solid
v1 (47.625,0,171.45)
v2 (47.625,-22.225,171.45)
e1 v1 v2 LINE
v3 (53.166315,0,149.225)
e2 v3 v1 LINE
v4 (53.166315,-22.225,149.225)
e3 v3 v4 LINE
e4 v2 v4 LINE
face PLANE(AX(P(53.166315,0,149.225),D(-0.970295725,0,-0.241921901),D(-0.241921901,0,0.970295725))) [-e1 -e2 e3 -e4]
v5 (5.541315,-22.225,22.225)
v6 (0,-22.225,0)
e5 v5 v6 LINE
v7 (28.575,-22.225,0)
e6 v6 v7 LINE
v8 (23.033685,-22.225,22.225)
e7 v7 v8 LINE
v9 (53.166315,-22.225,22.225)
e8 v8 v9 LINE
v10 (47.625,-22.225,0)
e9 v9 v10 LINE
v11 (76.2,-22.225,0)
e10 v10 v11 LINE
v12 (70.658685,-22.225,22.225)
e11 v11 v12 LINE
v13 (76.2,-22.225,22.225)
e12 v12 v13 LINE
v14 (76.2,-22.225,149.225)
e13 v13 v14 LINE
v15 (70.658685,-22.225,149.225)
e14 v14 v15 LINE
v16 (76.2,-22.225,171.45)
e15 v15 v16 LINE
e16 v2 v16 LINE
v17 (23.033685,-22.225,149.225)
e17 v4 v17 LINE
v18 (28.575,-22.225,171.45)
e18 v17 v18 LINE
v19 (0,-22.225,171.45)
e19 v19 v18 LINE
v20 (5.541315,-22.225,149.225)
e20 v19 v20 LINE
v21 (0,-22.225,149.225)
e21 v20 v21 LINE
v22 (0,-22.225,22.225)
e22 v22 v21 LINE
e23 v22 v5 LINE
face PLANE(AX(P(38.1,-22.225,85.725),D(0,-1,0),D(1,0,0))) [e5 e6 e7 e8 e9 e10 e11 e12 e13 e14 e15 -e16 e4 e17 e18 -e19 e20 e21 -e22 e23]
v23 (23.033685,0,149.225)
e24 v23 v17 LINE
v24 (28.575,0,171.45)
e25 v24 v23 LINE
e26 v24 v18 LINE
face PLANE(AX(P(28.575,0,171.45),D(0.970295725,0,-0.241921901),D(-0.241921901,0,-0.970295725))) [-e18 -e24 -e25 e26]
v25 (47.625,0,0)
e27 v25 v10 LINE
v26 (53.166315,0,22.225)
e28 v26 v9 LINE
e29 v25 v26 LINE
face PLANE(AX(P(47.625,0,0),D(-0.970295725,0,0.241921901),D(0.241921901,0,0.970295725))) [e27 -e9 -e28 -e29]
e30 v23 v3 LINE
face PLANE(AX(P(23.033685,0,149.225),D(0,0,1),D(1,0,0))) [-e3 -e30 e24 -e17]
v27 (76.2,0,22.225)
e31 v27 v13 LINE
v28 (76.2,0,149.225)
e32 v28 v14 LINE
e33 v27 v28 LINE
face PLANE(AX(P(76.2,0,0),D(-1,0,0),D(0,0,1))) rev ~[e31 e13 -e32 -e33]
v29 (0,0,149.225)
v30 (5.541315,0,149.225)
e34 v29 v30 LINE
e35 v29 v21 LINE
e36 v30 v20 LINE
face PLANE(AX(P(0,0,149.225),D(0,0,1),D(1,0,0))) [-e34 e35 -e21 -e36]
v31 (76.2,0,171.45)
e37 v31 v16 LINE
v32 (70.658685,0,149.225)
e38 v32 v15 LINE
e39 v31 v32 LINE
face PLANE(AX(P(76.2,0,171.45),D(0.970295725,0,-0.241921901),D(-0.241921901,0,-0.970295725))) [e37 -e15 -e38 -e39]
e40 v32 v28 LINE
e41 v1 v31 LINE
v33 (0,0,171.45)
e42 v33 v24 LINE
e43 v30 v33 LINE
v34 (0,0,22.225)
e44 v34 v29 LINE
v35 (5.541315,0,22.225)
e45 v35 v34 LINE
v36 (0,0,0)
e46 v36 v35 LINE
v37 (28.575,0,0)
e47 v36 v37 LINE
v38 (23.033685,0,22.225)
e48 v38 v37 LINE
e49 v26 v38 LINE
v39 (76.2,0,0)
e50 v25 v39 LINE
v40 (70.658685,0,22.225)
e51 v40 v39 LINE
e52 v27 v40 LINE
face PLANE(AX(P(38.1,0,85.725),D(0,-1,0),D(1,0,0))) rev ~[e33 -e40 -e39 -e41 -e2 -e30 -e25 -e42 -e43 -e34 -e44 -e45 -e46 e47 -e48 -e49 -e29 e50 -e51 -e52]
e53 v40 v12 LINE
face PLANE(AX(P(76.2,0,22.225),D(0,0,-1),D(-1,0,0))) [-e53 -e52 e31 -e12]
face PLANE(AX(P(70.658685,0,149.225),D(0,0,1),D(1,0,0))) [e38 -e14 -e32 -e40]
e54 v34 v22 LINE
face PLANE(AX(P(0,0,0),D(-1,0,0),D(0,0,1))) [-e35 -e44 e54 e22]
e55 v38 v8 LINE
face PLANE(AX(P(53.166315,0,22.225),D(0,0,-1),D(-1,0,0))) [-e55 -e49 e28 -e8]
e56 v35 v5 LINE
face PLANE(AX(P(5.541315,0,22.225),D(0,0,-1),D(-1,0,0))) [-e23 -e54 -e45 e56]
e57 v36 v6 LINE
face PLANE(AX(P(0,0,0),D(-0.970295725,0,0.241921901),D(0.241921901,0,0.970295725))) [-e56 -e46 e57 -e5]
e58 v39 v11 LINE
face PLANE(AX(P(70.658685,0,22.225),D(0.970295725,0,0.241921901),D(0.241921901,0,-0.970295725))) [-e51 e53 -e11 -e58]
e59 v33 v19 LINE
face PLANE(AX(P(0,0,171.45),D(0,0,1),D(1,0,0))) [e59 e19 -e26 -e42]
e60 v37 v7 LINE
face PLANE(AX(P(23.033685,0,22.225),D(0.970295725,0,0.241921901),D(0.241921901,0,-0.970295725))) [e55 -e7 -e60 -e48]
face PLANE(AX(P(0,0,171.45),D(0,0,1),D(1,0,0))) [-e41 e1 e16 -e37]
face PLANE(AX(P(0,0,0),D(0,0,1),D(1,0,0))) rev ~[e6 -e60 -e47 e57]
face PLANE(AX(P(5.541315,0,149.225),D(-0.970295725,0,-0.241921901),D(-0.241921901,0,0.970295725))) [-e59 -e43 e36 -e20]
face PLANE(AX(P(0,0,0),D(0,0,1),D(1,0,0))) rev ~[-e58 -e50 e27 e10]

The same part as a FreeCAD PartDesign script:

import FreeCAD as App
import Part
import Sketcher

V = App.Vector
Q = App.Units.Quantity


def add_polygon(sketch, points):
    """Adds a closed chain of lines whose ends are joined by coincident constraints."""
    first, n = sketch.GeometryCount, len(points)
    for a, b in zip(points, points[1:] + points[:1]):
        sketch.addGeometry(Part.LineSegment(App.Vector(*a, 0), App.Vector(*b, 0)), False)
    for i in range(n):
        sketch.addConstraint(Sketcher.Constraint("Coincident", first + i, 2, first + (i + 1) % n, 1))

doc = App.newDocument("Part")
params = doc.addObject("Spreadsheet::Sheet", "Params")
for row, (alias, value) in enumerate([
    ("sketch1_width", "3 in"),
    ("sketch1_height", "6.75 in"),
    ("pad1_length", "0.875 in"),
    ("sketch2_width", "0.75 in"),
    ("sketch2_height", "0.875 in"),
], start=1):
    params.set(f"A{row}", alias)
    params.set(f"B{row}", "=" + value)
    params.setAlias(f"B{row}", alias)

body = doc.addObject("PartDesign::Body", "Body")

sketch1 = body.newObject("Sketcher::SketchObject", "Sketch")
sketch1.AttachmentSupport = (doc.getObject("XZ_Plane"), [""])
sketch1.MapMode = "FlatFace"
add_polygon(sketch1, [(0, 171.45), (0, 0), (76.2, 0), (76.2, 171.45)])
sketch1.addConstraint([
    Sketcher.Constraint("Vertical", 0),
    Sketcher.Constraint("Horizontal", 1),
    Sketcher.Constraint("Vertical", 2),
    Sketcher.Constraint("Horizontal", 3),
    Sketcher.Constraint("Coincident", 0, 2, -1, 1),
    Sketcher.Constraint("DistanceX", 1, 1, 1, 2, Q("3 in")),
    Sketcher.Constraint("DistanceY", 0, 2, 0, 1, Q("6.75 in")),
])
sketch1.setExpression("Constraints[9]", "Params.sketch1_width")
sketch1.setExpression("Constraints[10]", "Params.sketch1_height")
pad1 = body.newObject("PartDesign::Pad", "Pad")
pad1.Profile = sketch1
pad1.setExpression("Length", "Params.pad1_length")

sketch2 = body.newObject("Sketcher::SketchObject", "Sketch001")
sketch2.AttachmentSupport = (doc.getObject("XZ_Plane"), [""])
sketch2.MapMode = "FlatFace"
add_polygon(sketch2, [(28.575, 171.45), (23.033685, 149.225), (53.166315, 149.225), (47.625, 171.45)])
add_polygon(sketch2, [(76.2, 149.225), (76.2, 171.45), (70.658685, 149.225)])
add_polygon(sketch2, [(5.541315, 149.225), (0, 171.45), (0, 149.225)])
add_polygon(sketch2, [(70.658685, 22.225), (76.2, 0), (76.2, 22.225)])
add_polygon(sketch2, [(53.166315, 22.225), (23.033685, 22.225), (28.575, 0), (47.625, 0)])
add_polygon(sketch2, [(0, 22.225), (0, 0), (5.541315, 22.225)])
sketch2.addConstraint([
    Sketcher.Constraint("Horizontal", 1),
    Sketcher.Constraint("Horizontal", 3),
    Sketcher.Constraint("Vertical", 4),
    Sketcher.Constraint("Horizontal", 6),
    Sketcher.Constraint("Vertical", 8),
    Sketcher.Constraint("Horizontal", 9),
    Sketcher.Constraint("Vertical", 11),
    Sketcher.Constraint("Horizontal", 12),
    Sketcher.Constraint("Horizontal", 13),
    Sketcher.Constraint("Horizontal", 15),
    Sketcher.Constraint("Vertical", 17),
    Sketcher.Constraint("Horizontal", 19),
    Sketcher.Constraint("Coincident", 17, 2, -1, 1),
    Sketcher.Constraint("PointOnObject", 7, 2, -2),
    Sketcher.Constraint("PointOnObject", 10, 2, -1),
    Sketcher.Constraint("PointOnObject", 14, 2, -1),
    Sketcher.Constraint("Parallel", 0, 5),
    Sketcher.Constraint("Parallel", 2, 7),
    Sketcher.Constraint("Parallel", 7, 10),
    Sketcher.Constraint("Parallel", 10, 14),
    Sketcher.Constraint("Parallel", 5, 16),
    Sketcher.Constraint("Parallel", 16, 18),
    Sketcher.Constraint("Horizontal", 3, 2, 4, 2),
    Sketcher.Constraint("Horizontal", 1, 2, 5, 2),
    Sketcher.Constraint("Horizontal", 4, 2, 7, 2),
    Sketcher.Constraint("Horizontal", 6, 2, 8, 2),
    Sketcher.Constraint("Horizontal", 12, 2, 13, 2),
    Sketcher.Constraint("Horizontal", 16, 2, 18, 2),
    Sketcher.Constraint("Vertical", 6, 2, 10, 2),
    Sketcher.Constraint("Vertical", 5, 2, 12, 2),
    Sketcher.Constraint("Vertical", 0, 2, 13, 2),
    Sketcher.Constraint("Vertical", 2, 2, 15, 2),
    Sketcher.Constraint("Vertical", 1, 2, 16, 2),
    Sketcher.Constraint("DistanceX", -1, 1, 4, 2, Q("3 in")),
    Sketcher.Constraint("Angle", 0, Q("-104 deg")),
    Sketcher.Constraint("DistanceY", 11, 2, 6, 2, Q("5 in")),
    Sketcher.Constraint("DistanceX", 3, 2, 3, 1, Q("0.75 in")),
    Sketcher.Constraint("DistanceY", 4, 1, 4, 2, Q("0.875 in")),
    Sketcher.Constraint("DistanceX", -1, 1, 2, 2, Q("1.875 in")),
])
sketch2.setExpression("Constraints[56]", "Params.sketch2_width")
sketch2.setExpression("Constraints[57]", "Params.sketch2_height")
pocket1 = body.newObject("PartDesign::Pocket", "Pocket")
pocket1.Profile = sketch2
pocket1.Type = "ThroughAll"
pocket1.Reversed = True

doc.recompute()
